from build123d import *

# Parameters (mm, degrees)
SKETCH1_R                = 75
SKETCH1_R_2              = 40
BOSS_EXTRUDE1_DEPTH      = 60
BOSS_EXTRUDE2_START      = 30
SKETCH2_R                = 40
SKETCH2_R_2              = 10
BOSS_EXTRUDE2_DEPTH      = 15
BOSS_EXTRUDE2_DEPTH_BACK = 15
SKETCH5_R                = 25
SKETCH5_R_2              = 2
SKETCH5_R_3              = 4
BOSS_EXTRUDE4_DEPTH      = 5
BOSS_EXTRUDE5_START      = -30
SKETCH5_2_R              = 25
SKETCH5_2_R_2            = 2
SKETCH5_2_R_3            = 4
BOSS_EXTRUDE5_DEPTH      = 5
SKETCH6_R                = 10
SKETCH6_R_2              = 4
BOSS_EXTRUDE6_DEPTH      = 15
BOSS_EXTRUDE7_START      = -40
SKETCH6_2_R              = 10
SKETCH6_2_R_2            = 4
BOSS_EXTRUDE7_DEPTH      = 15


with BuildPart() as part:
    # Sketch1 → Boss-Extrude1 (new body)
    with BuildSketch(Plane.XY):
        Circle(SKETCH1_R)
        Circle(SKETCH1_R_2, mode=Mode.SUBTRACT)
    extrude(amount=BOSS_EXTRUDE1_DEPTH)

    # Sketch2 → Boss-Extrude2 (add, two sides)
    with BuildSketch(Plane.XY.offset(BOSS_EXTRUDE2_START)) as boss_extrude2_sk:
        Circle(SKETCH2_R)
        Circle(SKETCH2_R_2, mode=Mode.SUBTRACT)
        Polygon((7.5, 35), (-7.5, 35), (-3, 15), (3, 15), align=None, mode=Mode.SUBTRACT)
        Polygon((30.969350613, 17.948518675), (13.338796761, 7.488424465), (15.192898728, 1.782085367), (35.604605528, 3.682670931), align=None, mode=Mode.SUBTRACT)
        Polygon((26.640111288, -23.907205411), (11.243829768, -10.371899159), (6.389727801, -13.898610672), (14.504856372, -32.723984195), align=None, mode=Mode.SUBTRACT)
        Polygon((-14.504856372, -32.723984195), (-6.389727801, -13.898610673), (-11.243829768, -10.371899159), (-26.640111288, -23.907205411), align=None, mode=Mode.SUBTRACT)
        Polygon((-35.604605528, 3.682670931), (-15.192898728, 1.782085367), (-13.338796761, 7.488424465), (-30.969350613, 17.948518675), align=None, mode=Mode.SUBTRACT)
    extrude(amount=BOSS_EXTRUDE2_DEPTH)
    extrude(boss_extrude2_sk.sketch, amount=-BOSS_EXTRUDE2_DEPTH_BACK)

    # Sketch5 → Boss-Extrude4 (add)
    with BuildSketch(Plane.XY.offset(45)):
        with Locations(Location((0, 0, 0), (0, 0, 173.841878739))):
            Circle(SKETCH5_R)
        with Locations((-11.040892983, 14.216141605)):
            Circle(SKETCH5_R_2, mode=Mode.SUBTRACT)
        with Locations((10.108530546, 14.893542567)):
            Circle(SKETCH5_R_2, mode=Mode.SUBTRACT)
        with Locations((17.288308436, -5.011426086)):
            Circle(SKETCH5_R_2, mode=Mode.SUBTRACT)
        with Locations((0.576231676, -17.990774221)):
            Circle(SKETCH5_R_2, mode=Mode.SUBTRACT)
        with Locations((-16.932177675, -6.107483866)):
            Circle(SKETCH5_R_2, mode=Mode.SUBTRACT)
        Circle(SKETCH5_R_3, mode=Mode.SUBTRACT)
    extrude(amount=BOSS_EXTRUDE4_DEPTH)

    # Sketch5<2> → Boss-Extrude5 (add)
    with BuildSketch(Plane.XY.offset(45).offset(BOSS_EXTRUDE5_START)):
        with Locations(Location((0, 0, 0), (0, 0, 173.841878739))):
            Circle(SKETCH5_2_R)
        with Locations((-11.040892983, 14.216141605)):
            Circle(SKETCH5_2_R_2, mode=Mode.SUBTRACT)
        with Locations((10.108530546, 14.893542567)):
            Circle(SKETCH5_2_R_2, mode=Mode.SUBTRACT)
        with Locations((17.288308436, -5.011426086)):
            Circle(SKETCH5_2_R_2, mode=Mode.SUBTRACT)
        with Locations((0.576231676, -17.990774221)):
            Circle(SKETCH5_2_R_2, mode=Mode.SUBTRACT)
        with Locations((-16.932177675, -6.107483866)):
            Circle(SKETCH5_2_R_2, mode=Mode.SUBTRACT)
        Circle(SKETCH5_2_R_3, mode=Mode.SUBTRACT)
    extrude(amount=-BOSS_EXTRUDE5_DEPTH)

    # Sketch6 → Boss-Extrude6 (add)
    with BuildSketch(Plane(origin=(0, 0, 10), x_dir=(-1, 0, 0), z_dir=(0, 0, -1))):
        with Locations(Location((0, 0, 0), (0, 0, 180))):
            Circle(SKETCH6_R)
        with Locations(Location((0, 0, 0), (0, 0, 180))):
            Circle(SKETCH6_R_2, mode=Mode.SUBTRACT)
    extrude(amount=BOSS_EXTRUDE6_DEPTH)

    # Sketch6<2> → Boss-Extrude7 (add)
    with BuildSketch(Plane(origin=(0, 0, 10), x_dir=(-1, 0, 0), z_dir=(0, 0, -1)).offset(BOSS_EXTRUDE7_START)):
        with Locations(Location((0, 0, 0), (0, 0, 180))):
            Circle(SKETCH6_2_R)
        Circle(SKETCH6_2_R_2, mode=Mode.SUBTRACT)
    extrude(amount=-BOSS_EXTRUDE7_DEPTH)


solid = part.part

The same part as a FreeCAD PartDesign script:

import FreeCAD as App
import Part
import Sketcher
Q = App.Units.Quantity

doc = App.newDocument("Part")
body = doc.addObject("PartDesign::Body", "Body")

# Sketch on XY plane
sketch1 = body.newObject("Sketcher::SketchObject", "Sketch")
sketch1.AttachmentSupport = (doc.getObject("XY_Plane"), [""])
sketch1.MapMode = "FlatFace"
sketch1.addGeometry([
    Part.Circle(App.Vector(0, 0, 0), App.Vector(0, 0, 1), 75),
    Part.Circle(App.Vector(0, 0, 0), App.Vector(0, 0, 1), 40),
], False)
sketch1.addConstraint([
    Sketcher.Constraint("Coincident", 0, 3, -1, 1),
    Sketcher.Constraint("Coincident", 1, 3, -1, 1),
    Sketcher.Constraint("Diameter", 0, Q("150 mm")),
    Sketcher.Constraint("Diameter", 1, Q("80 mm")),
])
pad1 = body.newObject("PartDesign::Pad", "Pad")
pad1.Profile = sketch1
pad1.Length = 60

# Sketch on XY plane
sketch2 = body.newObject("Sketcher::SketchObject", "Sketch001")
sketch2.AttachmentSupport = (doc.getObject("XY_Plane"), [""])
sketch2.MapMode = "FlatFace"
sketch2.AttachmentOffset = App.Placement(App.Vector(0, 0, 30), App.Rotation())
sketch2.addGeometry([
    Part.Circle(App.Vector(0, 0, 0), App.Vector(0, 0, 1), 40),  # 0
    Part.LineSegment(App.Vector(-6.389728, -13.898611, 0), App.Vector(-14.504856, -32.723984, 0)),  # 1
    Part.LineSegment(App.Vector(-14.504856, -32.723984, 0), App.Vector(-26.640111, -23.907205, 0)),  # 2
    Part.LineSegment(App.Vector(-26.640111, -23.907205, 0), App.Vector(-11.24383, -10.371899, 0)),  # 3
    Part.LineSegment(App.Vector(-11.24383, -10.371899, 0), App.Vector(-6.389728, -13.898611, 0)),  # 4
    Part.Circle(App.Vector(0, 0, 0), App.Vector(0, 0, 1), 10),  # 5
    Part.LineSegment(App.Vector(11.24383, -10.371899, 0), App.Vector(26.640111, -23.907205, 0)),  # 6
    Part.LineSegment(App.Vector(26.640111, -23.907205, 0), App.Vector(14.504856, -32.723984, 0)),  # 7
    Part.LineSegment(App.Vector(14.504856, -32.723984, 0), App.Vector(6.389728, -13.898611, 0)),  # 8
    Part.LineSegment(App.Vector(6.389728, -13.898611, 0), App.Vector(11.24383, -10.371899, 0)),  # 9
    Part.LineSegment(App.Vector(-15.192899, 1.782085, 0), App.Vector(-35.604606, 3.682671, 0)),  # 10
    Part.LineSegment(App.Vector(-35.604606, 3.682671, 0), App.Vector(-30.969351, 17.948519, 0)),  # 11
    Part.LineSegment(App.Vector(-30.969351, 17.948519, 0), App.Vector(-13.338797, 7.488424, 0)),  # 12
    Part.LineSegment(App.Vector(-13.338797, 7.488424, 0), App.Vector(-15.192899, 1.782085, 0)),  # 13
    Part.LineSegment(App.Vector(-7.5, 35, 0), App.Vector(7.5, 35, 0)),  # 14
    Part.LineSegment(App.Vector(7.5, 35, 0), App.Vector(3, 15, 0)),  # 15
    Part.LineSegment(App.Vector(3, 15, 0), App.Vector(-3, 15, 0)),  # 16
    Part.LineSegment(App.Vector(-3, 15, 0), App.Vector(-7.5, 35, 0)),  # 17
    Part.LineSegment(App.Vector(13.338797, 7.488424, 0), App.Vector(30.969351, 17.948519, 0)),  # 18
    Part.LineSegment(App.Vector(30.969351, 17.948519, 0), App.Vector(35.604606, 3.682671, 0)),  # 19
    Part.LineSegment(App.Vector(35.604606, 3.682671, 0), App.Vector(15.192899, 1.782085, 0)),  # 20
    Part.LineSegment(App.Vector(15.192899, 1.782085, 0), App.Vector(13.338797, 7.488424, 0)),  # 21
], False)
sketch2.addConstraint([
    Sketcher.Constraint("Coincident", 1, 2, 2, 1),
    Sketcher.Constraint("Coincident", 2, 2, 3, 1),
    Sketcher.Constraint("Coincident", 3, 2, 4, 1),
    Sketcher.Constraint("Coincident", 4, 2, 1, 1),
    Sketcher.Constraint("Coincident", 6, 2, 7, 1),
    Sketcher.Constraint("Coincident", 7, 2, 8, 1),
    Sketcher.Constraint("Coincident", 8, 2, 9, 1),
    Sketcher.Constraint("Coincident", 9, 2, 6, 1),
    Sketcher.Constraint("Coincident", 10, 2, 11, 1),
    Sketcher.Constraint("Coincident", 11, 2, 12, 1),
    Sketcher.Constraint("Coincident", 12, 2, 13, 1),
    Sketcher.Constraint("Coincident", 13, 2, 10, 1),
    Sketcher.Constraint("Coincident", 14, 2, 15, 1),
    Sketcher.Constraint("Coincident", 15, 2, 16, 1),
    Sketcher.Constraint("Coincident", 16, 2, 17, 1),
    Sketcher.Constraint("Coincident", 17, 2, 14, 1),
    Sketcher.Constraint("Coincident", 18, 2, 19, 1),
    Sketcher.Constraint("Coincident", 19, 2, 20, 1),
    Sketcher.Constraint("Coincident", 20, 2, 21, 1),
    Sketcher.Constraint("Coincident", 21, 2, 18, 1),
    Sketcher.Constraint("Horizontal", 14),
    Sketcher.Constraint("Horizontal", 16),
    Sketcher.Constraint("Coincident", 0, 3, -1, 1),
    Sketcher.Constraint("Coincident", 5, 3, -1, 1),
    Sketcher.Constraint("Symmetric", 2, 2, 6, 2, -2),
    Sketcher.Constraint("Symmetric", 1, 2, 7, 2, -2),
    Sketcher.Constraint("Symmetric", 4, 2, 8, 2, -2),
    Sketcher.Constraint("Symmetric", 3, 2, 9, 2, -2),
    Sketcher.Constraint("Symmetric", 11, 2, 18, 2, -2),
    Sketcher.Constraint("Symmetric", 10, 2, 19, 2, -2),
    Sketcher.Constraint("Symmetric", 13, 2, 20, 2, -2),
    Sketcher.Constraint("Symmetric", 12, 2, 21, 2, -2),
    Sketcher.Constraint("Parallel", 2, 4),
    Sketcher.Constraint("Parallel", 11, 13),
    Sketcher.Constraint("Equal", 1, 3),
    Sketcher.Constraint("Equal", 8, 10),
    Sketcher.Constraint("Equal", 7, 11),
    Sketcher.Constraint("Equal", 10, 12),
    Sketcher.Constraint("Equal", 9, 13),
    Sketcher.Constraint("Equal", 12, 15),
    Sketcher.Constraint("Equal", 15, 17),
    Sketcher.Constraint("Diameter", 0, Q("80 mm")),
    Sketcher.Constraint("Diameter", 5, Q("20 mm")),
    Sketcher.Constraint("DistanceX", 14, 1, 14, 2, Q("15 mm")),
    Sketcher.Constraint("DistanceX", 16, 2, 16, 1, Q("6 mm")),
    Sketcher.Constraint("Angle", 2, Q("144 deg")),
    Sketcher.Constraint("Angle", 11, Q("72 deg")),
    Sketcher.Constraint("Distance", 2, Q("15 mm")),
    Sketcher.Constraint("Distance", 4, Q("6 mm")),
    Sketcher.Constraint("DistanceY", -1, 1, 14, 2, Q("35 mm")),
    Sketcher.Constraint("DistanceX", -1, 1, 15, 2, Q("3 mm")),
    Sketcher.Constraint("DistanceY", -1, 1, 15, 2, Q("15 mm")),
    Sketcher.Constraint("DistanceY", 3, 2, -1, 1, Q("10.371899 mm")),
    Sketcher.Constraint("DistanceX", 13, 2, -1, 1, Q("15.192899 mm")),
    Sketcher.Constraint("DistanceX", 2, 2, -1, 1, Q("26.640111 mm")),
    Sketcher.Constraint("DistanceY", -1, 1, 10, 2, Q("3.682671 mm")),
])
pad2 = body.newObject("PartDesign::Pad", "Pad001")
pad2.Profile = sketch2
pad2.Type = "TwoLengths"
pad2.Length = 15
pad2.Length2 = 15

# Sketch on XY plane
sketch3 = body.newObject("Sketcher::SketchObject", "Sketch002")
sketch3.AttachmentSupport = (doc.getObject("XY_Plane"), [""])
sketch3.MapMode = "FlatFace"
sketch3.AttachmentOffset = App.Placement(App.Vector(0, 0, 45), App.Rotation())
sketch3.addGeometry([
    Part.Circle(App.Vector(0, 0, 0), App.Vector(0, 0, 1), 25),  # 0
    Part.Circle(App.Vector(10.108531, 14.893543, 0), App.Vector(0, 0, 1), 2),  # 1
    Part.Circle(App.Vector(-11.040893, 14.216142, 0), App.Vector(0, 0, 1), 2),  # 2
    Part.Circle(App.Vector(0, 0, 0), App.Vector(0, 0, 1), 4),  # 3
    Part.Circle(App.Vector(17.288308, -5.011426, 0), App.Vector(0, 0, 1), 2),  # 4
    Part.Circle(App.Vector(0.576232, -17.990774, 0), App.Vector(0, 0, 1), 2),  # 5
    Part.Circle(App.Vector(-16.932178, -6.107484, 0), App.Vector(0, 0, 1), 2),  # 6
], False)
sketch3.addConstraint([
    Sketcher.Constraint("Coincident", 0, 3, -1, 1),
    Sketcher.Constraint("Coincident", 3, 3, -1, 1),
    Sketcher.Constraint("Equal", 1, 2),
    Sketcher.Constraint("Equal", 2, 4),
    Sketcher.Constraint("Equal", 4, 5),
    Sketcher.Constraint("Equal", 5, 6),
    Sketcher.Constraint("Diameter", 0, Q("50 mm")),
    Sketcher.Constraint("Diameter", 1, Q("4 mm")),
    Sketcher.Constraint("Diameter", 3, Q("8 mm")),
    Sketcher.Constraint("DistanceY", 2, 3, 1, 3, Q("0.677401 mm")),
    Sketcher.Constraint("DistanceX", 2, 3, 4, 3, Q("28.329201 mm")),
    Sketcher.Constraint("DistanceX", 5, 3, 1, 3, Q("9.532299 mm")),
    Sketcher.Constraint("DistanceX", -1, 1, 1, 3, Q("10.108531 mm")),
    Sketcher.Constraint("DistanceY", -1, 1, 2, 3, Q("14.216142 mm")),
    Sketcher.Constraint("DistanceX", -1, 1, 4, 3, Q("17.288308 mm")),
    Sketcher.Constraint("DistanceY", 4, 3, 1, 3, Q("19.904969 mm")),
    Sketcher.Constraint("DistanceY", 5, 3, 4, 3, Q("12.979348 mm")),
    Sketcher.Constraint("DistanceX", 6, 3, 5, 3, Q("17.508409 mm")),
    Sketcher.Constraint("DistanceY", 5, 3, 6, 3, Q("11.88329 mm")),
])
pad3 = body.newObject("PartDesign::Pad", "Pad002")
pad3.Profile = sketch3
pad3.Length = 5

# Sketch on XY plane
sketch4 = body.newObject("Sketcher::SketchObject", "Sketch003")
sketch4.AttachmentSupport = (doc.getObject("XY_Plane"), [""])
sketch4.MapMode = "FlatFace"
sketch4.AttachmentOffset = App.Placement(App.Vector(0, 0, 15), App.Rotation())
sketch4.addGeometry([
    Part.Circle(App.Vector(0, 0, 0), App.Vector(0, 0, 1), 25),  # 0
    Part.Circle(App.Vector(10.108531, 14.893543, 0), App.Vector(0, 0, 1), 2),  # 1
    Part.Circle(App.Vector(-11.040893, 14.216142, 0), App.Vector(0, 0, 1), 2),  # 2
    Part.Circle(App.Vector(0, 0, 0), App.Vector(0, 0, 1), 4),  # 3
    Part.Circle(App.Vector(17.288308, -5.011426, 0), App.Vector(0, 0, 1), 2),  # 4
    Part.Circle(App.Vector(0.576232, -17.990774, 0), App.Vector(0, 0, 1), 2),  # 5
    Part.Circle(App.Vector(-16.932178, -6.107484, 0), App.Vector(0, 0, 1), 2),  # 6
], False)
sketch4.addConstraint([
    Sketcher.Constraint("Coincident", 0, 3, -1, 1),
    Sketcher.Constraint("Coincident", 3, 3, -1, 1),
    Sketcher.Constraint("Equal", 1, 2),
    Sketcher.Constraint("Equal", 2, 4),
    Sketcher.Constraint("Equal", 4, 5),
    Sketcher.Constraint("Equal", 5, 6),
    Sketcher.Constraint("Diameter", 0, Q("50 mm")),
    Sketcher.Constraint("Diameter", 1, Q("4 mm")),
    Sketcher.Constraint("Diameter", 3, Q("8 mm")),
    Sketcher.Constraint("DistanceY", 2, 3, 1, 3, Q("0.677401 mm")),
    Sketcher.Constraint("DistanceX", 2, 3, 4, 3, Q("28.329201 mm")),
    Sketcher.Constraint("DistanceX", 5, 3, 1, 3, Q("9.532299 mm")),
    Sketcher.Constraint("DistanceX", -1, 1, 1, 3, Q("10.108531 mm")),
    Sketcher.Constraint("DistanceY", -1, 1, 2, 3, Q("14.216142 mm")),
    Sketcher.Constraint("DistanceX", -1, 1, 4, 3, Q("17.288308 mm")),
    Sketcher.Constraint("DistanceY", 4, 3, 1, 3, Q("19.904969 mm")),
    Sketcher.Constraint("DistanceY", 5, 3, 4, 3, Q("12.979348 mm")),
    Sketcher.Constraint("DistanceX", 6, 3, 5, 3, Q("17.508409 mm")),
    Sketcher.Constraint("DistanceY", 5, 3, 6, 3, Q("11.88329 mm")),
])
pad4 = body.newObject("PartDesign::Pad", "Pad003")
pad4.Profile = sketch4
pad4.Length = 5
pad4.Reversed = True

# Sketch on XY plane
sketch5 = body.newObject("Sketcher::SketchObject", "Sketch004")
sketch5.AttachmentSupport = (doc.getObject("XY_Plane"), [""])
sketch5.MapMode = "FlatFace"
sketch5.AttachmentOffset = App.Placement(App.Vector(0, 0, 10), App.Rotation())
sketch5.addGeometry([
    Part.Circle(App.Vector(0, 0, 0), App.Vector(0, 0, 1), 10),
    Part.Circle(App.Vector(0, 0, 0), App.Vector(0, 0, 1), 4),
], False)
sketch5.addConstraint([
    Sketcher.Constraint("Coincident", 0, 3, -1, 1),
    Sketcher.Constraint("Coincident", 1, 3, -1, 1),
    Sketcher.Constraint("Diameter", 0, Q("20 mm")),
    Sketcher.Constraint("Diameter", 1, Q("8 mm")),
])
pad5 = body.newObject("PartDesign::Pad", "Pad004")
pad5.Profile = sketch5
pad5.Length = 15
pad5.Reversed = True

# Sketch on XY plane
sketch6 = body.newObject("Sketcher::SketchObject", "Sketch005")
sketch6.AttachmentSupport = (doc.getObject("XY_Plane"), [""])
sketch6.MapMode = "FlatFace"
sketch6.AttachmentOffset = App.Placement(App.Vector(0, 0, 50), App.Rotation())
sketch6.addGeometry([
    Part.Circle(App.Vector(0, 0, 0), App.Vector(0, 0, 1), 10),
    Part.Circle(App.Vector(0, 0, 0), App.Vector(0, 0, 1), 4),
], False)
sketch6.addConstraint([
    Sketcher.Constraint("Coincident", 0, 3, -1, 1),
    Sketcher.Constraint("Coincident", 1, 3, -1, 1),
    Sketcher.Constraint("Diameter", 0, Q("20 mm")),
    Sketcher.Constraint("Diameter", 1, Q("8 mm")),
])
pad6 = body.newObject("PartDesign::Pad", "Pad005")
pad6.Profile = sketch6
pad6.Length = 15

doc.recompute()
